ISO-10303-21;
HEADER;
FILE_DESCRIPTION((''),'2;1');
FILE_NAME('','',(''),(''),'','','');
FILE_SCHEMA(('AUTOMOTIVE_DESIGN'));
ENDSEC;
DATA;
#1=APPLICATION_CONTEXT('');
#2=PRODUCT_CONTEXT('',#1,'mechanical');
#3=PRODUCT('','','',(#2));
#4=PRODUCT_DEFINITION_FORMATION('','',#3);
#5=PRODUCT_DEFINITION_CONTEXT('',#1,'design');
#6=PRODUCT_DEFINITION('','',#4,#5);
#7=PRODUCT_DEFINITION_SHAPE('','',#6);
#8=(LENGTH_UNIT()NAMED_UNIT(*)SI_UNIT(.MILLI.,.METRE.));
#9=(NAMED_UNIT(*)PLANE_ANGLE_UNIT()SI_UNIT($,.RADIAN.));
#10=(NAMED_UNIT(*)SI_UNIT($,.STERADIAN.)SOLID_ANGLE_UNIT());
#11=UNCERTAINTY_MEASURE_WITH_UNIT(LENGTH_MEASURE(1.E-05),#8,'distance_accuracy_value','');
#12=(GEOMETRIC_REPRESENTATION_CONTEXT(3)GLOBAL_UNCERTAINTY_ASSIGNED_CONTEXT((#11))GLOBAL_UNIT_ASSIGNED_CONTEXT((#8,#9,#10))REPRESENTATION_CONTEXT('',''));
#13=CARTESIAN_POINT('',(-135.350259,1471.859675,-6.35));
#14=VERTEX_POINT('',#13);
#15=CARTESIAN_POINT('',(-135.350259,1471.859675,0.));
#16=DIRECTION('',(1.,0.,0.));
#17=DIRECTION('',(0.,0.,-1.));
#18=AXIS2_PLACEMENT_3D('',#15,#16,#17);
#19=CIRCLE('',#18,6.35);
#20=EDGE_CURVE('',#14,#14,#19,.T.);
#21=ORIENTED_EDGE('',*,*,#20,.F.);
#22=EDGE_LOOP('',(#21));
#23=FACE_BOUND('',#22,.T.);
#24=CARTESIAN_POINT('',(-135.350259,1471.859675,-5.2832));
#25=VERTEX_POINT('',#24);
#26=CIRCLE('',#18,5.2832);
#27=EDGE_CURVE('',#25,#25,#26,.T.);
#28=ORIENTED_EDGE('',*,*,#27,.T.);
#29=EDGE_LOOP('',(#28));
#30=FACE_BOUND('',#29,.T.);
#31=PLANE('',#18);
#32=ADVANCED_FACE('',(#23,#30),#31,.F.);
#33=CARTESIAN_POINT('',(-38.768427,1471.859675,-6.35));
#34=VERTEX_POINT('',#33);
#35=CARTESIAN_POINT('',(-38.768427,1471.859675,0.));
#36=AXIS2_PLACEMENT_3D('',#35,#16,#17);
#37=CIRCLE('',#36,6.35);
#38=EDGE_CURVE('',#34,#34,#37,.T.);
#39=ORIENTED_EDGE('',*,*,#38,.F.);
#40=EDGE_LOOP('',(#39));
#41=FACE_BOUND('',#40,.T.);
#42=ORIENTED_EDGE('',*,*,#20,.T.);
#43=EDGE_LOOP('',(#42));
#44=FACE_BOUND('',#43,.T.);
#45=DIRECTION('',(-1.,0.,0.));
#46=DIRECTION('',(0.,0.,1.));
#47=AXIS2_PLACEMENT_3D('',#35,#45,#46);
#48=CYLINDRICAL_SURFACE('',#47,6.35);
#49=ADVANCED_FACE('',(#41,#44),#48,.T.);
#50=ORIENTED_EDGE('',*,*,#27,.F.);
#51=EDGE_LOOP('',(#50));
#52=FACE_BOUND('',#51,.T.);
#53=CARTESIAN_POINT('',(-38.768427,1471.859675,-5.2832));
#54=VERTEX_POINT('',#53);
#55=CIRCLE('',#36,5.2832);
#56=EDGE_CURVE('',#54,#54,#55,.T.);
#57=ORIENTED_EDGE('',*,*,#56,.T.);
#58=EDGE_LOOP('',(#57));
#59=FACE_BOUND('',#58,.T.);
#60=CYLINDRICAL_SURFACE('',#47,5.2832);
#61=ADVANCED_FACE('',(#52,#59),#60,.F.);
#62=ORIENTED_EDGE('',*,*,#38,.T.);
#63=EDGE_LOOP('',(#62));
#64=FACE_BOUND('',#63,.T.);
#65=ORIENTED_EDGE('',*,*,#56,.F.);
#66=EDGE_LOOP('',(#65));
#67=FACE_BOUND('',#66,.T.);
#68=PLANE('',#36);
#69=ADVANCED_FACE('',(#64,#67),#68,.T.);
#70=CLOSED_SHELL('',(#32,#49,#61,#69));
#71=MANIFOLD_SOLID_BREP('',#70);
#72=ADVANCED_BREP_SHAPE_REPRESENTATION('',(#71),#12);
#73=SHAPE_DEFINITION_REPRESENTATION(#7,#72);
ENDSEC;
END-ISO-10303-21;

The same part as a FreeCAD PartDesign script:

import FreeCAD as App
import Part
import Sketcher
Q = App.Units.Quantity

doc = App.newDocument("Part")
body = doc.addObject("PartDesign::Body", "Body")

sketch1 = body.newObject("Sketcher::SketchObject", "Sketch")
sketch1.AttachmentSupport = (doc.getObject("YZ_Plane"), [""])
sketch1.MapMode = "FlatFace"
sketch1.AttachmentOffset = App.Placement(App.Vector(0, 0, -135.350259), App.Rotation())
sketch1.addGeometry(Part.Circle(App.Vector(1472, 0, 0), App.Vector(0, 0, 1), 6), False)
sketch1.addGeometry(Part.Circle(App.Vector(1472, 0, 0), App.Vector(0, 0, 1), 5), False)
sketch1.addConstraint(Sketcher.Constraint("Coincident", 1, 3, 0, 3))
sketch1.addConstraint(Sketcher.Constraint("PointOnObject", 0, 3, -1))
sketch1.addConstraint(Sketcher.Constraint("Diameter", 0, Q("0.5 in")))
sketch1.addConstraint(Sketcher.Constraint("Diameter", 1, Q("0.416 in")))
sketch1.addConstraint(Sketcher.Constraint("DistanceX", -1, 1, 0, 3, 1471.859675))
pad1 = body.newObject("PartDesign::Pad", "Pad")
pad1.Profile = sketch1
pad1.Length = 96.581832

doc.recompute()
